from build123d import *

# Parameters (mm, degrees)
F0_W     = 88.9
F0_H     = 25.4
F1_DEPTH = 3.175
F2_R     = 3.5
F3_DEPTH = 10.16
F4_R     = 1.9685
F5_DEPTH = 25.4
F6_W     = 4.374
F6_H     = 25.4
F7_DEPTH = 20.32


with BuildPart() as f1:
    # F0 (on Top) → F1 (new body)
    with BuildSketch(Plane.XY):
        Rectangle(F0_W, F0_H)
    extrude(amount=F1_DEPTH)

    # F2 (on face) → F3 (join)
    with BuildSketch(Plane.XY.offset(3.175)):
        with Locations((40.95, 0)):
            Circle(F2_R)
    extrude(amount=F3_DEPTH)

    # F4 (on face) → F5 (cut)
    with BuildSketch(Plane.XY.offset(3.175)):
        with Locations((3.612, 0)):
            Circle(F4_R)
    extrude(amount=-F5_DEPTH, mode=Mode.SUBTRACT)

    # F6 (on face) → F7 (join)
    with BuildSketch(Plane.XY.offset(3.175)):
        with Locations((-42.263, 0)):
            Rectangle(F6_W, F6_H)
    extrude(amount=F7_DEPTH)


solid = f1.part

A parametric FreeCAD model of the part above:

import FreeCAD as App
import Part
import Sketcher
from FreeCAD import Vector
Q = App.Units.Quantity

doc = App.newDocument("Part")
body = doc.addObject("PartDesign::Body", "Body")

# Sketch on XY plane
sketch1 = doc.addObject("Sketcher::SketchObject", "Sketch")
body.addObject(sketch1)
sketch1.AttachmentSupport = (doc.XY_Plane, [""])
sketch1.MapMode = "FlatFace"
sketch1.addGeometry([
    Part.LineSegment(Vector(-44.45, 12.7, 0), Vector(-44.45, -12.7, 0)),
    Part.LineSegment(Vector(-44.45, -12.7, 0), Vector(44.45, -12.7, 0)),
    Part.LineSegment(Vector(44.45, -12.7, 0), Vector(44.45, 12.7, 0)),
    Part.LineSegment(Vector(44.45, 12.7, 0), Vector(-44.45, 12.7, 0)),
], False)
sketch1.addConstraint([
    Sketcher.Constraint("Coincident", 0, 2, 1, 1),
    Sketcher.Constraint("Coincident", 1, 2, 2, 1),
    Sketcher.Constraint("Coincident", 2, 2, 3, 1),
    Sketcher.Constraint("Coincident", 3, 2, 0, 1),
    Sketcher.Constraint("Vertical", 0),
    Sketcher.Constraint("Horizontal", 1),
    Sketcher.Constraint("Vertical", 2),
    Sketcher.Constraint("Horizontal", 3),
    Sketcher.Constraint("Symmetric", 0, 2, 2, 2, -1, 1),
    Sketcher.Constraint("DistanceY", 0, 2, 0, 1, Q("1 in")),
    Sketcher.Constraint("DistanceX", 1, 1, 1, 2, Q("3.5 in")),
])
pad1 = doc.addObject("PartDesign::Pad", "Pad")
body.addObject(pad1)
pad1.Profile = sketch1
pad1.Length = Q("0.125 in")

# Sketch on XY plane
sketch2 = doc.addObject("Sketcher::SketchObject", "Sketch001")
body.addObject(sketch2)
sketch2.AttachmentSupport = (doc.XY_Plane, [""])
sketch2.MapMode = "FlatFace"
sketch2.AttachmentOffset = App.Placement(Vector(0, 0, 0.125 * 25.4), App.Rotation())
sketch2.addGeometry(Part.Circle(Vector(40.95, 0, 0), Vector(0, 0, 1), 3.5), False)
sketch2.addConstraint([
    Sketcher.Constraint("PointOnObject", 0, 3, -1),
    Sketcher.Constraint("Diameter", 0, 7.0),
    Sketcher.Constraint("DistanceX", -1, 1, 0, 3, 40.95),
])
pad2 = doc.addObject("PartDesign::Pad", "Pad001")
body.addObject(pad2)
pad2.Profile = sketch2
pad2.Length = Q("0.4 in")

# Sketch on XY plane
sketch3 = doc.addObject("Sketcher::SketchObject", "Sketch002")
body.addObject(sketch3)
sketch3.AttachmentSupport = (doc.XY_Plane, [""])
sketch3.MapMode = "FlatFace"
sketch3.AttachmentOffset = App.Placement(Vector(0, 0, 0.125 * 25.4), App.Rotation())
sketch3.addGeometry(Part.Circle(Vector(3.612, 0, 0), Vector(0, 0, 1), 1.9685), False)
sketch3.addConstraint([
    Sketcher.Constraint("PointOnObject", 0, 3, -1),
    Sketcher.Constraint("Diameter", 0, Q("0.155 in")),
    Sketcher.Constraint("DistanceX", -1, 1, 0, 3, 3.612),
])
pocket1 = doc.addObject("PartDesign::Pocket", "Pocket")
body.addObject(pocket1)
pocket1.Profile = sketch3
pocket1.Length = Q("1 in")

# Sketch on XY plane
sketch4 = doc.addObject("Sketcher::SketchObject", "Sketch003")
body.addObject(sketch4)
sketch4.AttachmentSupport = (doc.XY_Plane, [""])
sketch4.MapMode = "FlatFace"
sketch4.AttachmentOffset = App.Placement(Vector(0, 0, 0.125 * 25.4), App.Rotation())
sketch4.addGeometry([
    Part.LineSegment(Vector(-44.45, 12.7, 0), Vector(-44.45, -12.7, 0)),
    Part.LineSegment(Vector(-44.45, -12.7, 0), Vector(-40.076, -12.7, 0)),
    Part.LineSegment(Vector(-40.076, -12.7, 0), Vector(-40.076, 12.7, 0)),
    Part.LineSegment(Vector(-40.076, 12.7, 0), Vector(-44.45, 12.7, 0)),
], False)
sketch4.addConstraint([
    Sketcher.Constraint("Coincident", 0, 2, 1, 1),
    Sketcher.Constraint("Coincident", 1, 2, 2, 1),
    Sketcher.Constraint("Coincident", 2, 2, 3, 1),
    Sketcher.Constraint("Coincident", 3, 2, 0, 1),
    Sketcher.Constraint("Vertical", 0),
    Sketcher.Constraint("Horizontal", 1),
    Sketcher.Constraint("Vertical", 2),
    Sketcher.Constraint("Horizontal", 3),
    Sketcher.Constraint("DistanceY", 0, 2, 0, 1, Q("1 in")),
    Sketcher.Constraint("DistanceY", 0, 2, -1, 1, Q("0.5 in")),
    Sketcher.Constraint("DistanceX", 0, 2, -1, 1, Q("1.75 in")),
    Sketcher.Constraint("DistanceX", 1, 1, 1, 2, 4.374),
])
pad3 = doc.addObject("PartDesign::Pad", "Pad002")
body.addObject(pad3)
pad3.Profile = sketch4
pad3.Length = Q("0.8 in")

doc.recompute()
